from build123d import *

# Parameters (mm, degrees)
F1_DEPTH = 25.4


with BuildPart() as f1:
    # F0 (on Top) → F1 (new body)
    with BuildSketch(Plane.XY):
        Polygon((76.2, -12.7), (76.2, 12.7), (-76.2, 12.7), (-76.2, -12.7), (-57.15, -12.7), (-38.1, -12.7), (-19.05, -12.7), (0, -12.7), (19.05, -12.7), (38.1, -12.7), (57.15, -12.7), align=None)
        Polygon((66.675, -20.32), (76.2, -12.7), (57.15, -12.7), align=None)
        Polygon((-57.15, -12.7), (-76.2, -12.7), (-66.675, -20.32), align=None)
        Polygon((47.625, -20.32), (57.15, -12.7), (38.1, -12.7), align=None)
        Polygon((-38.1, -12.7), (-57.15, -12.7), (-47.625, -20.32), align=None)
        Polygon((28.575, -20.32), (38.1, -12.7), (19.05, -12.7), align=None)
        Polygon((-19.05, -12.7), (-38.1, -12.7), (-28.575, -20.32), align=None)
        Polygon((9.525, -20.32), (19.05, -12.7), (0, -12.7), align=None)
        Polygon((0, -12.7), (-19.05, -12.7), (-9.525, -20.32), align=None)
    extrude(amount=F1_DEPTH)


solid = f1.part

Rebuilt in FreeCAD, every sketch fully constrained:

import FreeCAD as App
import Part
import Sketcher

V = App.Vector
Q = App.Units.Quantity

doc = App.newDocument("Part")
body = doc.addObject("PartDesign::Body", "Body")

sketch1 = body.newObject("Sketcher::SketchObject", "Sketch")
sketch1.AttachmentSupport = (doc.getObject("XY_Plane"), [""])
sketch1.MapMode = "FlatFace"
sketch1.addGeometry([
    Part.LineSegment(V(76, -13, 0), V(76, 13, 0)),
    Part.LineSegment(V(76, 13, 0), V(-76, 13, 0)),
    Part.LineSegment(V(-76, 13, 0), V(-76, -13, 0)),
    Part.LineSegment(V(-76, -13, 0), V(-67, -20, 0)),
    Part.LineSegment(V(-67, -20, 0), V(-57, -13, 0)),
    Part.LineSegment(V(-57, -13, 0), V(-48, -20, 0)),
    Part.LineSegment(V(-48, -20, 0), V(-38, -13, 0)),
    Part.LineSegment(V(-38, -13, 0), V(-29, -20, 0)),
    Part.LineSegment(V(-29, -20, 0), V(-19, -13, 0)),
    Part.LineSegment(V(-19, -13, 0), V(-10, -20, 0)),
    Part.LineSegment(V(-10, -20, 0), V(0, -13, 0)),
    Part.LineSegment(V(0, -13, 0), V(10, -20, 0)),
    Part.LineSegment(V(10, -20, 0), V(19, -13, 0)),
    Part.LineSegment(V(19, -13, 0), V(29, -20, 0)),
    Part.LineSegment(V(29, -20, 0), V(38, -13, 0)),
    Part.LineSegment(V(38, -13, 0), V(48, -20, 0)),
    Part.LineSegment(V(48, -20, 0), V(57, -13, 0)),
    Part.LineSegment(V(57, -13, 0), V(67, -20, 0)),
    Part.LineSegment(V(67, -20, 0), V(76, -13, 0)),
], False)
sketch1.addConstraint([
    Sketcher.Constraint("Coincident", 0, 2, 1, 1),
    Sketcher.Constraint("Coincident", 1, 2, 2, 1),
    Sketcher.Constraint("Coincident", 2, 2, 3, 1),
    Sketcher.Constraint("Coincident", 3, 2, 4, 1),
    Sketcher.Constraint("Coincident", 4, 2, 5, 1),
    Sketcher.Constraint("Coincident", 5, 2, 6, 1),
    Sketcher.Constraint("Coincident", 6, 2, 7, 1),
    Sketcher.Constraint("Coincident", 7, 2, 8, 1),
    Sketcher.Constraint("Coincident", 8, 2, 9, 1),
    Sketcher.Constraint("Coincident", 9, 2, 10, 1),
    Sketcher.Constraint("Coincident", 10, 2, 11, 1),
    Sketcher.Constraint("Coincident", 11, 2, 12, 1),
    Sketcher.Constraint("Coincident", 12, 2, 13, 1),
    Sketcher.Constraint("Coincident", 13, 2, 14, 1),
    Sketcher.Constraint("Coincident", 14, 2, 15, 1),
    Sketcher.Constraint("Coincident", 15, 2, 16, 1),
    Sketcher.Constraint("Coincident", 16, 2, 17, 1),
    Sketcher.Constraint("Coincident", 17, 2, 18, 1),
    Sketcher.Constraint("Coincident", 18, 2, 0, 1),
    Sketcher.Constraint("Vertical", 0),
    Sketcher.Constraint("Horizontal", 1),
    Sketcher.Constraint("Vertical", 2),
    Sketcher.Constraint("Symmetric", 0, 2, 2, 2, -1, 1),
    Sketcher.Constraint("Symmetric", 9, 2, 11, 2, -2),
    Sketcher.Constraint("Symmetric", 8, 2, 12, 2, -2),
    Sketcher.Constraint("Symmetric", 7, 2, 13, 2, -2),
    Sketcher.Constraint("Symmetric", 6, 2, 14, 2, -2),
    Sketcher.Constraint("Symmetric", 5, 2, 15, 2, -2),
    Sketcher.Constraint("Symmetric", 4, 2, 16, 2, -2),
    Sketcher.Constraint("Symmetric", 3, 2, 17, 2, -2),
    Sketcher.Constraint("PointOnObject", 10, 2, -2),
    Sketcher.Constraint("Parallel", 3, 5),
    Sketcher.Constraint("Parallel", 4, 6),
    Sketcher.Constraint("Parallel", 5, 7),
    Sketcher.Constraint("Parallel", 6, 8),
    Sketcher.Constraint("Parallel", 7, 9),
    Sketcher.Constraint("Parallel", 8, 10),
    Sketcher.Constraint("Parallel", 9, 11),
    Sketcher.Constraint("Parallel", 16, 18),
    Sketcher.Constraint("Horizontal", 2, 2, 4, 2),
    Sketcher.Constraint("Horizontal", 3, 2, 5, 2),
    Sketcher.Constraint("Horizontal", 4, 2, 6, 2),
    Sketcher.Constraint("Horizontal", 5, 2, 7, 2),
    Sketcher.Constraint("Horizontal", 6, 2, 8, 2),
    Sketcher.Constraint("Horizontal", 7, 2, 9, 2),
    Sketcher.Constraint("Horizontal", 8, 2, 10, 2),
    Sketcher.Constraint("DistanceX", 1, 2, 1, 1, Q("6 in")),
    Sketcher.Constraint("DistanceY", 0, 1, 0, 2, Q("1 in")),
    Sketcher.Constraint("DistanceY", 3, 2, -1, 1, Q("0.8 in")),
])
pad1 = body.newObject("PartDesign::Pad", "Pad")
pad1.Profile = sketch1
pad1.Length = Q("1 in")

doc.recompute()
